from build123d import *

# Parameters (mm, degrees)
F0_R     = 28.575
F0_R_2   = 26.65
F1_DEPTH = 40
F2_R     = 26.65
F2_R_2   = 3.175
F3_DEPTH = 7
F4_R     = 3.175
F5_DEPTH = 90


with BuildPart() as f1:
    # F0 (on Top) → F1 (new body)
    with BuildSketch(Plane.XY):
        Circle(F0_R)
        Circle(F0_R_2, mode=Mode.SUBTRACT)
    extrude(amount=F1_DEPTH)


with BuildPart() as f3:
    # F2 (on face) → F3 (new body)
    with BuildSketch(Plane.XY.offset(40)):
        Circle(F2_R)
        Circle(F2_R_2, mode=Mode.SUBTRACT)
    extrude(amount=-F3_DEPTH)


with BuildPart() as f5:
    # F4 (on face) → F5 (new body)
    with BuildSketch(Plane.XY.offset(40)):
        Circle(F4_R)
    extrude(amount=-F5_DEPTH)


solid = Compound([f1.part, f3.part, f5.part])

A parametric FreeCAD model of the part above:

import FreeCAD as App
import Part
import Sketcher

V = App.Vector
Q = App.Units.Quantity

doc = App.newDocument("Part")
params = doc.addObject("Spreadsheet::Sheet", "Params")
for row, (alias, value) in enumerate([
    ("sketch1_diameter", "53.3 mm"),
    ("sketch1_diameter2", "57.15 mm"),
    ("pad1_length", "40 mm"),
    ("sketch2_diameter", "53.3 mm"),
    ("sketch2_diameter2", "6.35 mm"),
    ("pad2_length", "7 mm"),
    ("sketch3_diameter", "6.35 mm"),
    ("pad3_length", "90 mm"),
], start=1):
    params.set(f"A{row}", alias)
    params.set(f"B{row}", "=" + value)
    params.setAlias(f"B{row}", alias)

body = doc.addObject("PartDesign::Body", "Body")

# Sketch on XY plane
sketch1 = doc.addObject("Sketcher::SketchObject", "Sketch")
body.addObject(sketch1)
sketch1.AttachmentSupport = (doc.XY_Plane, [""])
sketch1.MapMode = "FlatFace"
sketch1.addGeometry(Part.Circle(V(0, 0, 0), V(0, 0, 1), 29), False)
sketch1.addGeometry(Part.Circle(V(0, 0, 0), V(0, 0, 1), 27), False)
sketch1.addConstraint(Sketcher.Constraint("Coincident", 0, 3, -1, 1))
sketch1.addConstraint(Sketcher.Constraint("Coincident", 1, 3, -1, 1))
sketch1.addConstraint(Sketcher.Constraint("Diameter", 1, Q("53.3 mm")))
sketch1.addConstraint(Sketcher.Constraint("Diameter", 0, Q("57.15 mm")))
sketch1.setExpression("Constraints[2]", "Params.sketch1_diameter")
sketch1.setExpression("Constraints[3]", "Params.sketch1_diameter2")
pad1 = doc.addObject("PartDesign::Pad", "Pad")
body.addObject(pad1)
pad1.Profile = sketch1
pad1.setExpression("Length", "Params.pad1_length")
body2 = doc.addObject("PartDesign::Body", "Body001")

# Sketch on XY plane
sketch2 = doc.addObject("Sketcher::SketchObject", "Sketch001")
body2.addObject(sketch2)
sketch2.AttachmentSupport = (doc.getObject("XY_Plane001"), [""])
sketch2.MapMode = "FlatFace"
sketch2.AttachmentOffset = App.Placement(V(0, 0, 40), App.Rotation())
sketch2.addGeometry(Part.Circle(V(0, 0, 0), V(0, 0, 1), 26.6), False)
sketch2.addGeometry(Part.Circle(V(0, 0, 0), V(0, 0, 1), 3.2), False)
sketch2.addConstraint(Sketcher.Constraint("Coincident", 0, 3, -1, 1))
sketch2.addConstraint(Sketcher.Constraint("Coincident", 1, 3, -1, 1))
sketch2.addConstraint(Sketcher.Constraint("Diameter", 0, Q("53.3 mm")))
sketch2.addConstraint(Sketcher.Constraint("Diameter", 1, Q("6.35 mm")))
sketch2.setExpression("Constraints[2]", "Params.sketch2_diameter")
sketch2.setExpression("Constraints[3]", "Params.sketch2_diameter2")
pad2 = doc.addObject("PartDesign::Pad", "Pad001")
body2.addObject(pad2)
pad2.Profile = sketch2
pad2.setExpression("Length", "Params.pad2_length")
pad2.Reversed = True
body3 = doc.addObject("PartDesign::Body", "Body002")

# Sketch on XY plane
sketch3 = doc.addObject("Sketcher::SketchObject", "Sketch002")
body3.addObject(sketch3)
sketch3.AttachmentSupport = (doc.getObject("XY_Plane002"), [""])
sketch3.MapMode = "FlatFace"
sketch3.AttachmentOffset = App.Placement(V(0, 0, 40), App.Rotation())
sketch3.addGeometry(Part.Circle(V(0, 0, 0), V(0, 0, 1), 3.2), False)
sketch3.addConstraint(Sketcher.Constraint("Coincident", 0, 3, -1, 1))
sketch3.addConstraint(Sketcher.Constraint("Diameter", 0, Q("6.35 mm")))
sketch3.setExpression("Constraints[1]", "Params.sketch3_diameter")
pad3 = doc.addObject("PartDesign::Pad", "Pad002")
body3.addObject(pad3)
pad3.Profile = sketch3
pad3.setExpression("Length", "Params.pad3_length")
pad3.Reversed = True

doc.recompute()
